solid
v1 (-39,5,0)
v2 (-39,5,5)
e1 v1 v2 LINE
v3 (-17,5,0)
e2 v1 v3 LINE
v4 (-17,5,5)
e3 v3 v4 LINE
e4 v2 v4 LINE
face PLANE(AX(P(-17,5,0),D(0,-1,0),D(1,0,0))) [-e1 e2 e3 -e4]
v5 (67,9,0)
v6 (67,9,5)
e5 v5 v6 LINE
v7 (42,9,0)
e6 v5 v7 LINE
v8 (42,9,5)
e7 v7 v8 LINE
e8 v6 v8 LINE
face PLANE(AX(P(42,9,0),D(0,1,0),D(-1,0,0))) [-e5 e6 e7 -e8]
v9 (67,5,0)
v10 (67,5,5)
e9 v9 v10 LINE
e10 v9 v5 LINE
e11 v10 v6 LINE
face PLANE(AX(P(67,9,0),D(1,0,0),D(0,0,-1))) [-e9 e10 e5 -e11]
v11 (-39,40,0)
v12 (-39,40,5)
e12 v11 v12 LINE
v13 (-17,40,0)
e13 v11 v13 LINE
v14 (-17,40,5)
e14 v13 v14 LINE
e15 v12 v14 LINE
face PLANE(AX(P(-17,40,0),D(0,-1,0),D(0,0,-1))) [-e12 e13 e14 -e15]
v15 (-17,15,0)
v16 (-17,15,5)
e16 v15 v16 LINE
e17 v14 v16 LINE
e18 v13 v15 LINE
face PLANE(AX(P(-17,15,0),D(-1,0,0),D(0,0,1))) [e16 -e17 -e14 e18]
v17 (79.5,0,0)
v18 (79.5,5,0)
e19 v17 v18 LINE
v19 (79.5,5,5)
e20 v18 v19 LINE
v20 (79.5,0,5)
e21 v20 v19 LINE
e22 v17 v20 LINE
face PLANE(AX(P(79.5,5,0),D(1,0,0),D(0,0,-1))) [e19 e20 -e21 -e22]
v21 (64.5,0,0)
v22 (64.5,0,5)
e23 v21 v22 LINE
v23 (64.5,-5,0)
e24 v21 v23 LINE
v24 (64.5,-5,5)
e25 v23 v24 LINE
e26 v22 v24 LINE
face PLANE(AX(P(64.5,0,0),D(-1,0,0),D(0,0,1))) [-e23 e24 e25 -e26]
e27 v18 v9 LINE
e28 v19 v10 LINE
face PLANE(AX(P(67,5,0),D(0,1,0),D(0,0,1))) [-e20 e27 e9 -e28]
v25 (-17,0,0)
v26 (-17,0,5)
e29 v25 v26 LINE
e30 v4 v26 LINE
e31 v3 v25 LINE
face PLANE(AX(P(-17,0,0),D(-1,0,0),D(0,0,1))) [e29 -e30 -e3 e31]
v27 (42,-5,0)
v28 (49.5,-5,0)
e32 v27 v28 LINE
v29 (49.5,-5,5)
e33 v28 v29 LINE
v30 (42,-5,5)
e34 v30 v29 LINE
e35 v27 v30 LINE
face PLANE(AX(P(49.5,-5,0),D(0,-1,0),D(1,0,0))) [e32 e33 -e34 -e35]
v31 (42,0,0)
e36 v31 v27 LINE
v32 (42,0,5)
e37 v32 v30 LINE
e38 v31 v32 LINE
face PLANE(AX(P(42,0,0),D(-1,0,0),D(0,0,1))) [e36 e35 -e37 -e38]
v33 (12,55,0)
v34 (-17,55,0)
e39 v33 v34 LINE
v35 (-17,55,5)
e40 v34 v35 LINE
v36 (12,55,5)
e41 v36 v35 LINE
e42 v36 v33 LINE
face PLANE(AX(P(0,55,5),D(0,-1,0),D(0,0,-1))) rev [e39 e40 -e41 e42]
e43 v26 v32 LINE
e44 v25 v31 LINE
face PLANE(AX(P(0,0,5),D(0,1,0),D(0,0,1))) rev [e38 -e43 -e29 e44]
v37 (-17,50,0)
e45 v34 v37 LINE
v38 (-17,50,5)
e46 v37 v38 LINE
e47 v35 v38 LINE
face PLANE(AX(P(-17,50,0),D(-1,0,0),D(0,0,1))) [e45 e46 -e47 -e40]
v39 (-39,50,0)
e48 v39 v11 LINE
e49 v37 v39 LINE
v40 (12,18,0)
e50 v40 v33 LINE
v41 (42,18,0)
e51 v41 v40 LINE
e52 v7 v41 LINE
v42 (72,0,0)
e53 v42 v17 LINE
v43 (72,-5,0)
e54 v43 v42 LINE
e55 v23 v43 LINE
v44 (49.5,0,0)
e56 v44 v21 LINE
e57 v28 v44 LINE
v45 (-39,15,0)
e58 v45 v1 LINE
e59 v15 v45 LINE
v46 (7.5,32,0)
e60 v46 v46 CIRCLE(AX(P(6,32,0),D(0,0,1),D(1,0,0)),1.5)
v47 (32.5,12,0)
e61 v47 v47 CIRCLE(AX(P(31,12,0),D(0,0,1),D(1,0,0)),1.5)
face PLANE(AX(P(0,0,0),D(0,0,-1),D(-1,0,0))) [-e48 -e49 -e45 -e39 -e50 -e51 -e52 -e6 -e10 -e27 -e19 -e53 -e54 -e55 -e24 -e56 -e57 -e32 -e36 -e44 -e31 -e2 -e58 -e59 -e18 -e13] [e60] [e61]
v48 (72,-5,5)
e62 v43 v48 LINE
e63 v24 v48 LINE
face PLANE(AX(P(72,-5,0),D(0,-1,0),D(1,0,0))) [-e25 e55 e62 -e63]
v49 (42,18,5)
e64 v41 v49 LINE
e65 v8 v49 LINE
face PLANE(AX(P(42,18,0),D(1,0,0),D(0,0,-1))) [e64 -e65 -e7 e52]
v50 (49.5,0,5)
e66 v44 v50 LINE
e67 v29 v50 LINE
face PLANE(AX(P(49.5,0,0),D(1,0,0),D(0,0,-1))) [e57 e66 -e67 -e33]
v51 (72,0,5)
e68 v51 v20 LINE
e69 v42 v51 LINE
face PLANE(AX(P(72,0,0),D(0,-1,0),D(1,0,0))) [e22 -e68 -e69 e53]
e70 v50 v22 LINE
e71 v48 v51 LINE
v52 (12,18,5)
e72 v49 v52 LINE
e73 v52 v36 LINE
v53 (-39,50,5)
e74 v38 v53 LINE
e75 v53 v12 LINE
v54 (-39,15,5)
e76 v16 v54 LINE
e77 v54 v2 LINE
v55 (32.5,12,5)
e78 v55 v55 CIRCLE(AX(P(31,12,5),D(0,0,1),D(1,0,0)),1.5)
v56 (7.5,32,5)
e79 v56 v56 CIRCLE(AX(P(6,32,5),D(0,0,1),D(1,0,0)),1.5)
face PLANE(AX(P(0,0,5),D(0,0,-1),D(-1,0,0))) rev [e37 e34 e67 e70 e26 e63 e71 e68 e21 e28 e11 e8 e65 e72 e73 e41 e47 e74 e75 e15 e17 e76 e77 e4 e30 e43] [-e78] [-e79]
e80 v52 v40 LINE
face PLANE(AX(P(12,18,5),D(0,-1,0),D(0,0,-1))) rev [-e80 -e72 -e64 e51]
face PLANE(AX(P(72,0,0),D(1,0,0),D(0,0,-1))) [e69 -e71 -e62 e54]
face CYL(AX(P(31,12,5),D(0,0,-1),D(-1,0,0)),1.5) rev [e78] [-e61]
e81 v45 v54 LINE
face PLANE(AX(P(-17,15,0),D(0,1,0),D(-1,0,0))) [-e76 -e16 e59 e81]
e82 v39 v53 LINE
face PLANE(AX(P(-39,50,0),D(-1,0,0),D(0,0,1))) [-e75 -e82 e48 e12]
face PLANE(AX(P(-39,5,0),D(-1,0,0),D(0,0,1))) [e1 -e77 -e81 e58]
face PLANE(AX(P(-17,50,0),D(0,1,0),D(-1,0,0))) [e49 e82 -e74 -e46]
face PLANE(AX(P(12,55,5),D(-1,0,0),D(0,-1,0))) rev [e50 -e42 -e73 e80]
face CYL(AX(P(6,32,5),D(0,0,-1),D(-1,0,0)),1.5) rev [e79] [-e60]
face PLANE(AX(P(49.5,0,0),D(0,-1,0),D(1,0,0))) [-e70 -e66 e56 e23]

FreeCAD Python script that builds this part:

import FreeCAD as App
import Part
import Sketcher
from FreeCAD import Vector
Q = App.Units.Quantity


def add_polygon(sketch, points):
    """Adds a closed chain of lines whose ends are joined by coincident constraints."""
    first, n = sketch.GeometryCount, len(points)
    for a, b in zip(points, points[1:] + points[:1]):
        sketch.addGeometry(Part.LineSegment(App.Vector(*a, 0), App.Vector(*b, 0)), False)
    for i in range(n):
        sketch.addConstraint(Sketcher.Constraint("Coincident", first + i, 2, first + (i + 1) % n, 1))

doc = App.newDocument("Part")
body = doc.addObject("PartDesign::Body", "Body")

# Sketch on XY plane
sketch1 = body.newObject("Sketcher::SketchObject", "Sketch")
sketch1.AttachmentSupport = (doc.getObject("XY_Plane"), [""])
sketch1.MapMode = "FlatFace"
add_polygon(sketch1, [(0, 0), (37, 0), (37, 18), (12, 18), (12, 55), (0, 55)])  # lines 0-5
sketch1.addGeometry(Part.Circle(Vector(31, 12, 0), Vector(0, 0, 1), 1.5), False)  # 6
sketch1.addGeometry(Part.Circle(Vector(6, 32, 0), Vector(0, 0, 1), 1.5), False)  # 7
sketch1.addConstraint([
    Sketcher.Constraint("Horizontal", 0),
    Sketcher.Constraint("Vertical", 1),
    Sketcher.Constraint("Horizontal", 2),
    Sketcher.Constraint("Vertical", 3),
    Sketcher.Constraint("Horizontal", 4),
    Sketcher.Constraint("Vertical", 5),
    Sketcher.Constraint("Coincident", 5, 2, -1, 1),
    Sketcher.Constraint("Equal", 6, 7),
    Sketcher.Constraint("Equal", 0, 3),
    Sketcher.Constraint("Diameter", 6, Q("3 mm")),
    Sketcher.Constraint("DistanceX", 0, 1, 0, 2, Q("37 mm")),
    Sketcher.Constraint("DistanceX", 2, 2, 2, 1, Q("25 mm")),
    Sketcher.Constraint("DistanceY", 1, 1, 1, 2, Q("18 mm")),
    Sketcher.Constraint("DistanceX", -1, 1, 6, 3, Q("31 mm")),
    Sketcher.Constraint("DistanceY", -1, 1, 6, 3, Q("12 mm")),
    Sketcher.Constraint("DistanceX", -1, 1, 7, 3, Q("6 mm")),
    Sketcher.Constraint("DistanceY", -1, 1, 7, 3, Q("32 mm")),
])
pad1 = body.newObject("PartDesign::Pad", "Pad")
pad1.Profile = sketch1
pad1.Length = 5

# Sketch on XY plane
sketch2 = body.newObject("Sketcher::SketchObject", "Sketch001")
sketch2.AttachmentSupport = (doc.getObject("XY_Plane"), [""])
sketch2.MapMode = "FlatFace"
sketch2.AttachmentOffset = App.Placement(Vector(0, 0, 5), App.Rotation())
add_polygon(sketch2, [(37, 0), (42, 0), (42, -5), (49.5, -5), (49.5, 0), (64.5, 0), (64.5, -5), (72, -5), (72, 0), (79.5, 0), (79.5, 5), (67, 5), (67, 9), (42, 9), (42, 18), (37, 18)])  # lines 0-15
add_polygon(sketch2, [(-17, 0), (0, 0), (0, 55), (-17, 55), (-17, 50), (-39, 50), (-39, 40), (-17, 40), (-17, 15), (-39, 15), (-39, 5), (-17, 5)])  # lines 16-27
sketch2.addConstraint([
    Sketcher.Constraint("Horizontal", 0),
    Sketcher.Constraint("Vertical", 1),
    Sketcher.Constraint("Horizontal", 2),
    Sketcher.Constraint("Vertical", 3),
    Sketcher.Constraint("Horizontal", 4),
    Sketcher.Constraint("Vertical", 5),
    Sketcher.Constraint("Horizontal", 6),
    Sketcher.Constraint("Vertical", 7),
    Sketcher.Constraint("Horizontal", 8),
    Sketcher.Constraint("Vertical", 9),
    Sketcher.Constraint("Horizontal", 10),
    Sketcher.Constraint("Vertical", 11),
    Sketcher.Constraint("Horizontal", 12),
    Sketcher.Constraint("Vertical", 13),
    Sketcher.Constraint("Horizontal", 14),
    Sketcher.Constraint("Vertical", 15),
    Sketcher.Constraint("Horizontal", 16),
    Sketcher.Constraint("Vertical", 17),
    Sketcher.Constraint("Horizontal", 18),
    Sketcher.Constraint("Vertical", 19),
    Sketcher.Constraint("Horizontal", 20),
    Sketcher.Constraint("Vertical", 21),
    Sketcher.Constraint("Horizontal", 22),
    Sketcher.Constraint("Vertical", 23),
    Sketcher.Constraint("Horizontal", 24),
    Sketcher.Constraint("Vertical", 25),
    Sketcher.Constraint("Horizontal", 26),
    Sketcher.Constraint("Vertical", 27),
    Sketcher.Constraint("Coincident", 16, 2, -1, 1),
    Sketcher.Constraint("PointOnObject", 0, 2, -1),
    Sketcher.Constraint("PointOnObject", 3, 2, -1),
    Sketcher.Constraint("PointOnObject", 7, 2, -1),
    Sketcher.Constraint("Horizontal", 2, 2, 5, 2),
    Sketcher.Constraint("Horizontal", 10, 2, 25, 2),
    Sketcher.Constraint("Vertical", 1, 2, 12, 2),
    Sketcher.Constraint("Vertical", 19, 2, 22, 2),
    Sketcher.Constraint("Vertical", 21, 2, 24, 2),
    Sketcher.Constraint("Vertical", 23, 2, 26, 2),
    Sketcher.Constraint("Equal", 2, 6),
    Sketcher.Constraint("Equal", 6, 8),
    Sketcher.Constraint("Equal", 14, 1),
    Sketcher.Constraint("Equal", 7, 9),
    Sketcher.Constraint("Equal", 9, 19),
    Sketcher.Constraint("Equal", 12, 23),
    Sketcher.Constraint("Equal", 21, 25),
    Sketcher.Constraint("DistanceX", 0, 1, 0, 2, Q("5 mm")),
    Sketcher.Constraint("DistanceX", 4, 1, 4, 2, Q("15 mm")),
    Sketcher.Constraint("DistanceX", 12, 2, 12, 1, Q("25 mm")),
    Sketcher.Constraint("DistanceX", 16, 1, 16, 2, Q("17 mm")),
    Sketcher.Constraint("DistanceX", 20, 2, 20, 1, Q("22 mm")),
    Sketcher.Constraint("DistanceY", 11, 1, 11, 2, Q("4 mm")),
    Sketcher.Constraint("DistanceY", 13, 1, 13, 2, Q("9 mm")),
    Sketcher.Constraint("DistanceY", 17, 1, 17, 2, Q("55 mm")),
    Sketcher.Constraint("DistanceX", 2, 1, 2, 2, Q("7.5 mm")),
    Sketcher.Constraint("DistanceX", -1, 1, 0, 2, Q("42 mm")),
])
pad2 = body.newObject("PartDesign::Pad", "Pad001")
pad2.Profile = sketch2
pad2.Length = 5
pad2.Reversed = True

doc.recompute()
